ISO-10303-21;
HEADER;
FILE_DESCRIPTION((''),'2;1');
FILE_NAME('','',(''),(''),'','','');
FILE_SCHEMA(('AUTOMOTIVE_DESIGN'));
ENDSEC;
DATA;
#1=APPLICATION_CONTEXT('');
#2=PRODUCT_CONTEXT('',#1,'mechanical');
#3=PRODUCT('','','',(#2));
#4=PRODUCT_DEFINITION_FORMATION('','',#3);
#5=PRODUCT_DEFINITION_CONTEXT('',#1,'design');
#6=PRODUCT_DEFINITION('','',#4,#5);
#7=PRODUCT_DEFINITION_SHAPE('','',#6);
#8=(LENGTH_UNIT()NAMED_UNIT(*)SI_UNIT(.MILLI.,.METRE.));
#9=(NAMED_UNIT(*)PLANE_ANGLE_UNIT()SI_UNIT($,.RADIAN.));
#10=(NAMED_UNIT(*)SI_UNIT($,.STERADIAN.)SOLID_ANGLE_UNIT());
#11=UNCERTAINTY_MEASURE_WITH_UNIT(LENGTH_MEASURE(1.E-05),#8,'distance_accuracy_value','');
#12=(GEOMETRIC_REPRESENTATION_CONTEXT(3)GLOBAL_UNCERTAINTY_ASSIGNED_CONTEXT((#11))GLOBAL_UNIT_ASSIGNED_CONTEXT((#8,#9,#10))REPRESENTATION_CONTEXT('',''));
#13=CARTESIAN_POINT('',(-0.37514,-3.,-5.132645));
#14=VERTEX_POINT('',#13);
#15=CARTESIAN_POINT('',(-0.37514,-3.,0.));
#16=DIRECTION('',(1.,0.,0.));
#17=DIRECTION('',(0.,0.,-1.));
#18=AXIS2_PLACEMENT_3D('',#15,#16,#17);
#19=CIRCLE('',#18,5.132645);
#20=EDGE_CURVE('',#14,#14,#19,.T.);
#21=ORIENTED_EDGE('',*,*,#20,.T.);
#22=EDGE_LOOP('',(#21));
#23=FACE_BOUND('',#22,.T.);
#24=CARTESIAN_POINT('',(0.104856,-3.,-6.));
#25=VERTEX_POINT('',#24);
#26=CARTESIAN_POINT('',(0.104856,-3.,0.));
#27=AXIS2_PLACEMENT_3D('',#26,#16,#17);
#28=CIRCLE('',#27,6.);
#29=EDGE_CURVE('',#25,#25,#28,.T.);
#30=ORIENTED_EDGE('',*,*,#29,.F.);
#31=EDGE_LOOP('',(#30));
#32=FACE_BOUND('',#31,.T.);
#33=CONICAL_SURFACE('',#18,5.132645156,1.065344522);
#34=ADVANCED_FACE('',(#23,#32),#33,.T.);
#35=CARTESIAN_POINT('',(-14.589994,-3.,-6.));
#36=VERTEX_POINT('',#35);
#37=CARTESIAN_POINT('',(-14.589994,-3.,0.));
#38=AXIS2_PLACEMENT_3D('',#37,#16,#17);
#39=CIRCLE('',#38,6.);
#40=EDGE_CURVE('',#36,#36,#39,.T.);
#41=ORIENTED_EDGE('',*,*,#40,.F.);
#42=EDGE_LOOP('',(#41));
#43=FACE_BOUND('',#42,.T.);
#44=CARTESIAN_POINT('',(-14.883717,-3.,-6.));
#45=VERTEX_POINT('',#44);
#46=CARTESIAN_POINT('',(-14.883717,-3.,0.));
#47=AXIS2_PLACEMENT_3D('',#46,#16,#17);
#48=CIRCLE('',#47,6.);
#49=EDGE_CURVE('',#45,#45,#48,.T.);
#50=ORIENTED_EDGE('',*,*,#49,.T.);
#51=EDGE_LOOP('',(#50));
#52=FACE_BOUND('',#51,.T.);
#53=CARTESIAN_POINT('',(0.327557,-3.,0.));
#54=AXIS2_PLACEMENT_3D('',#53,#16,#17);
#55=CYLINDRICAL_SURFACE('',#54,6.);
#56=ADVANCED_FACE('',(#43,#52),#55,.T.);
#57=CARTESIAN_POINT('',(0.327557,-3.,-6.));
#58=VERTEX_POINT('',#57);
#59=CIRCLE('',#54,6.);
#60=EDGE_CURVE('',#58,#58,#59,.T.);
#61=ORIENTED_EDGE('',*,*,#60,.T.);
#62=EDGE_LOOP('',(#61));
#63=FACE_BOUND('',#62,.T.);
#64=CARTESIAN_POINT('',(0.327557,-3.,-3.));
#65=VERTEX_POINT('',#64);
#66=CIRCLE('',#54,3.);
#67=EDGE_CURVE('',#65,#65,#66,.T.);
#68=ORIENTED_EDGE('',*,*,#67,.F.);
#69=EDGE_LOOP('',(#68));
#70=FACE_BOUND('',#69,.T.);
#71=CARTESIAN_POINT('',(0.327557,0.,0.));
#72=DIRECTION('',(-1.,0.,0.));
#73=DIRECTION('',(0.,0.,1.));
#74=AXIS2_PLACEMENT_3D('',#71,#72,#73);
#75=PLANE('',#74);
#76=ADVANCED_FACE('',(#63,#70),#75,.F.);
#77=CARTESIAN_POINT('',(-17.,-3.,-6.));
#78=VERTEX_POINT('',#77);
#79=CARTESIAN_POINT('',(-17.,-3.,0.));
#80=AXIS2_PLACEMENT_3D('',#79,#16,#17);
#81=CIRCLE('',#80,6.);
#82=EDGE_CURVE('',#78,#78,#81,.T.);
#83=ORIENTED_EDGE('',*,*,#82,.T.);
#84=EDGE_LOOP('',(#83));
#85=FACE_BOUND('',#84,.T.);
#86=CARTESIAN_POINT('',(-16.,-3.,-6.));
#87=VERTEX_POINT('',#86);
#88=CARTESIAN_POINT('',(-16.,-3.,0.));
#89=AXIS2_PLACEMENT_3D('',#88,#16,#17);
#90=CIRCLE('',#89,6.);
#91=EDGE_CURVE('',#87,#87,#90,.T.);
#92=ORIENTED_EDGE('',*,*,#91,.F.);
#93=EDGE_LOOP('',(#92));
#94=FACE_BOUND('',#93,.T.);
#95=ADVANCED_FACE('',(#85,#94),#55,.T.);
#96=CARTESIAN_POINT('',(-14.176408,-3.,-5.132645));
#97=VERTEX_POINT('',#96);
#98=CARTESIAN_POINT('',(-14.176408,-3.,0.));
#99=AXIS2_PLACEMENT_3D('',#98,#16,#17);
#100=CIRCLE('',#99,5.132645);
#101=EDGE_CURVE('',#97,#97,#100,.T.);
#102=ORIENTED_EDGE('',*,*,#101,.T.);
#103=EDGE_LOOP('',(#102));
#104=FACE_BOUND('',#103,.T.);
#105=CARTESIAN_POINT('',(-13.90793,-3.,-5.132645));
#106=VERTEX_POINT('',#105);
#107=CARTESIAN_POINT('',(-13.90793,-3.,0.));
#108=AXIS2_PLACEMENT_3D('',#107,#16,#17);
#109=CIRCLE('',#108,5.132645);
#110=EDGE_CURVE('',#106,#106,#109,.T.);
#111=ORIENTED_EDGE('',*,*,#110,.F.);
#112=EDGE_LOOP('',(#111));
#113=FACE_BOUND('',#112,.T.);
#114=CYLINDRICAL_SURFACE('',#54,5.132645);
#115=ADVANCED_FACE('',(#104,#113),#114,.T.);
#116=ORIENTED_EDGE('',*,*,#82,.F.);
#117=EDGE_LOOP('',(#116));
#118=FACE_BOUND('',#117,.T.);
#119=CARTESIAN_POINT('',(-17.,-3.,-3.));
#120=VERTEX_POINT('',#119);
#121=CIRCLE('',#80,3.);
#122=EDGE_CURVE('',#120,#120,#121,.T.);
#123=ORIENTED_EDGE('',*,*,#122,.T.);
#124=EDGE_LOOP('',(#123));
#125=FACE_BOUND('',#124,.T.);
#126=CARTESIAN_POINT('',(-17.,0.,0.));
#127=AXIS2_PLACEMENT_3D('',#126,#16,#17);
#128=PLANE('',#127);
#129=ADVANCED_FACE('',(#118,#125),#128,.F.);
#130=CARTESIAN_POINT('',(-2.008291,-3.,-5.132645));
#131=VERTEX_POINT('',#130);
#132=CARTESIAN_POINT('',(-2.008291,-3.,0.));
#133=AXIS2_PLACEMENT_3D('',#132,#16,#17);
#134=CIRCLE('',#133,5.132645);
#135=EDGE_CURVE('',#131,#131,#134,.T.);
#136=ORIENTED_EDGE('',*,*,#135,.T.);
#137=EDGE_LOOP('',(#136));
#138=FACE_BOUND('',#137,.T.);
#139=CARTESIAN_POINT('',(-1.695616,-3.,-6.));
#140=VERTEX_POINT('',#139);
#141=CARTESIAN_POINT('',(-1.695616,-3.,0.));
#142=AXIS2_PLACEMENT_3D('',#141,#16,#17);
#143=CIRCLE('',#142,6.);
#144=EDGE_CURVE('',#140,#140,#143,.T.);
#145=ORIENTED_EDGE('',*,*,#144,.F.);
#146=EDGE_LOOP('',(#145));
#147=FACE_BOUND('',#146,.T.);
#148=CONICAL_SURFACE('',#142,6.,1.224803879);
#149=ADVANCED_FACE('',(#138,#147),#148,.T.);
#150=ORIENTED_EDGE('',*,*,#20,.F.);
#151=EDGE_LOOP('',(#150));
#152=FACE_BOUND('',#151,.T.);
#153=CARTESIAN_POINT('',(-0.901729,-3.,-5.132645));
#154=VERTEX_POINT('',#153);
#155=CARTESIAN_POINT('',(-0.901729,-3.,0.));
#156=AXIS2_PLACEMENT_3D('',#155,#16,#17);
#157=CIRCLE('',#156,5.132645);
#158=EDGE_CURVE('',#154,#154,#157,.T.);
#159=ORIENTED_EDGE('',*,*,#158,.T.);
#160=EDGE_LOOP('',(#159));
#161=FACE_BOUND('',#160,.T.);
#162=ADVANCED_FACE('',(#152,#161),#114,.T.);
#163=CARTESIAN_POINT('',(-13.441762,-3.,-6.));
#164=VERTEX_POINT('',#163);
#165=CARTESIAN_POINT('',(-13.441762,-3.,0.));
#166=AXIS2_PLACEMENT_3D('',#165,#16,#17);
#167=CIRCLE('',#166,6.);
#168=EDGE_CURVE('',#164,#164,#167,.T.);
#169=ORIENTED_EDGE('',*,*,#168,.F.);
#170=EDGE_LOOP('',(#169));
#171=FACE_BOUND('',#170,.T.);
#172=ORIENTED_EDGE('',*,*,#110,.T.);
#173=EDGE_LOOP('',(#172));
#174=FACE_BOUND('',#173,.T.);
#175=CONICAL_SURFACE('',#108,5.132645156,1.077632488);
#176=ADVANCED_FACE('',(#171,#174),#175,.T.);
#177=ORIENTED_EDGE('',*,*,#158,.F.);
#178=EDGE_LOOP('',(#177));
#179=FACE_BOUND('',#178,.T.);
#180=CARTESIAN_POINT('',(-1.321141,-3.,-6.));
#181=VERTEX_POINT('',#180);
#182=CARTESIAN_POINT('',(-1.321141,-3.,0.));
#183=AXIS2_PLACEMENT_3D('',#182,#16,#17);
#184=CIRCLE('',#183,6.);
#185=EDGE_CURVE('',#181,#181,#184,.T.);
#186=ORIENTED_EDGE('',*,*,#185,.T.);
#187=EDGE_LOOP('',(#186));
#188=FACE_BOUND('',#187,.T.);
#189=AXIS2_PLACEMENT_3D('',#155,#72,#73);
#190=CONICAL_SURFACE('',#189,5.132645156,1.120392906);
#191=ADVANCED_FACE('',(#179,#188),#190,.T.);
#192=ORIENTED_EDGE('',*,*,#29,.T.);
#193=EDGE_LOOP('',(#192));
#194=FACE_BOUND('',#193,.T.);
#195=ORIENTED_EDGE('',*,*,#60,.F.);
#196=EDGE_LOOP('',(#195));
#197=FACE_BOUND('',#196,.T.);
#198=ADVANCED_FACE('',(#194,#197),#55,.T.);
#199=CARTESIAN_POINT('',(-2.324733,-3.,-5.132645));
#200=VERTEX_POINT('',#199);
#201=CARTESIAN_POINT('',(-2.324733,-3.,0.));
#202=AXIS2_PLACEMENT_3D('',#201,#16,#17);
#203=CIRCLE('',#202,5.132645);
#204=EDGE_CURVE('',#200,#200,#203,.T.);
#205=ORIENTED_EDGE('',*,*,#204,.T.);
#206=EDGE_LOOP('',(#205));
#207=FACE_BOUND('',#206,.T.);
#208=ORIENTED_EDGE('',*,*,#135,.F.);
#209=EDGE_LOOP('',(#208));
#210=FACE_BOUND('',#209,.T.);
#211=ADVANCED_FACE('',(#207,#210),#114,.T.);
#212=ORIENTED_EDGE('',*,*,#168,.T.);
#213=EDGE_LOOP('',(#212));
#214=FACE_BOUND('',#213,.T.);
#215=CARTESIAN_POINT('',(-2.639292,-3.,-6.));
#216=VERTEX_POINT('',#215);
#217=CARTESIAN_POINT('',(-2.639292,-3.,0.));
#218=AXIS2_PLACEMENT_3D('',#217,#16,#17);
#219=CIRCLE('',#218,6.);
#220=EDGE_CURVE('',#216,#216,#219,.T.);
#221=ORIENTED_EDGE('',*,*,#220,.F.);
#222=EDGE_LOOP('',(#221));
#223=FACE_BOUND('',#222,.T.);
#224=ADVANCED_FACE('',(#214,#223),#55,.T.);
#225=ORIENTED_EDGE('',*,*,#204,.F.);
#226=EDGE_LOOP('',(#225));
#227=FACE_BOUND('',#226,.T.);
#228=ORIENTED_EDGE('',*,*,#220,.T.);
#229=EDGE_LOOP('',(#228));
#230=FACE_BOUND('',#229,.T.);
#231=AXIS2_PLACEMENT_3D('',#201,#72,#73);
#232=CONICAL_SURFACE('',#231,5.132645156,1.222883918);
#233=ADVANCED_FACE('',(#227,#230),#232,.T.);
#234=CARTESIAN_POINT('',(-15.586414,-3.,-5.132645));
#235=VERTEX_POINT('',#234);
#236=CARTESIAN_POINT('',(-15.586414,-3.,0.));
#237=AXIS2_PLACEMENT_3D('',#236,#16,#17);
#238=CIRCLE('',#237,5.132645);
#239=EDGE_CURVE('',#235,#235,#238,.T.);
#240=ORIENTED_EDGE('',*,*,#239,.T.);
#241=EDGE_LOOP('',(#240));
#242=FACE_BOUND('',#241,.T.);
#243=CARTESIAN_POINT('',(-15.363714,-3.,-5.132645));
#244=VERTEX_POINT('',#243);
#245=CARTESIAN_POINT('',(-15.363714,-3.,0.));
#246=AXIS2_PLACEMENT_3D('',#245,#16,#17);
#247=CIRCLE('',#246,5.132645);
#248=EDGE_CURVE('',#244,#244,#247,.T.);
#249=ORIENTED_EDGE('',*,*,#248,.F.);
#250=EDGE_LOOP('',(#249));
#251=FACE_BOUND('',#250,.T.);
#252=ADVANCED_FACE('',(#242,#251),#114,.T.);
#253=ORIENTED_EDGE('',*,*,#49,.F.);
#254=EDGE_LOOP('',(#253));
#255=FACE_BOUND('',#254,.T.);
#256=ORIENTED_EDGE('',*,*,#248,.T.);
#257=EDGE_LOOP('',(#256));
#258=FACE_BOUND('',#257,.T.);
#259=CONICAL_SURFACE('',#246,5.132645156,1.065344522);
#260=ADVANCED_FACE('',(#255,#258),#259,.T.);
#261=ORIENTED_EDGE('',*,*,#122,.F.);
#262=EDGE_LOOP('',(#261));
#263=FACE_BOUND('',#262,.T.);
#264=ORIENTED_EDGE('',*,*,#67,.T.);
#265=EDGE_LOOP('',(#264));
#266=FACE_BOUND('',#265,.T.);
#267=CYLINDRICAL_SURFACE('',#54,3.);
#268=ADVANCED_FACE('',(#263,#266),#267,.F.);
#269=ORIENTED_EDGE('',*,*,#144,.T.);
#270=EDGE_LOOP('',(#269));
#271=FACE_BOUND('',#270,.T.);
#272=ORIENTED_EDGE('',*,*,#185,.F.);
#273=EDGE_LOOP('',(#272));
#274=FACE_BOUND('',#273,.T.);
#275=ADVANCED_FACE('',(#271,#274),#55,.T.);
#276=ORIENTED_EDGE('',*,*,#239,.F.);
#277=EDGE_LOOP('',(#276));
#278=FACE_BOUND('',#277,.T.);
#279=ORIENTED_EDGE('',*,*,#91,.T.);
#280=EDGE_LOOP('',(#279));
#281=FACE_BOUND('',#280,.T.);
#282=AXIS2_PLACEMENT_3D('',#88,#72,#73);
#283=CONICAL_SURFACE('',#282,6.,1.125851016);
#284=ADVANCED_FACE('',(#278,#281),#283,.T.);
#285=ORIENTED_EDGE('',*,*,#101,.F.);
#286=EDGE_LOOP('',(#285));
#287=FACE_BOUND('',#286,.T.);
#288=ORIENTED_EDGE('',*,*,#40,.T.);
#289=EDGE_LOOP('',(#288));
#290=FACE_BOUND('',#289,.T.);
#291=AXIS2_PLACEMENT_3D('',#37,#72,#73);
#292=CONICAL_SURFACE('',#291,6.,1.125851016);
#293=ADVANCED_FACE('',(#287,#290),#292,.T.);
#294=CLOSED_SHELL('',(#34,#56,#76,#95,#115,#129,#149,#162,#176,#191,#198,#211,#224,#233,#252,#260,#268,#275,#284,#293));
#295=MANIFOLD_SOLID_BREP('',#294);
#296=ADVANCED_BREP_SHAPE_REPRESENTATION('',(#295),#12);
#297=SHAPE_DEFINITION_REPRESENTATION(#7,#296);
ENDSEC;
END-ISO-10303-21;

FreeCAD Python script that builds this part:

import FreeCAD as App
import Part
import Sketcher

V = App.Vector

doc = App.newDocument("Part")
params = doc.addObject("Spreadsheet::Sheet", "Params")
for row, (alias, value) in enumerate([
    ("sketch1_width", "1 mm"),
    ("sketch1_height", "3 mm"),
    ("revolution_angle", "360 deg"),
], start=1):
    params.set(f"A{row}", alias)
    params.set(f"B{row}", "=" + value)
    params.setAlias(f"B{row}", alias)

body = doc.addObject("PartDesign::Body", "Body")

# Sketch on XY plane
sketch1 = body.newObject("Sketcher::SketchObject", "Sketch")
sketch1.AttachmentSupport = (doc.getObject("XY_Plane"), [""])
sketch1.MapMode = "FlatFace"
sketch1.addGeometry(Part.LineSegment(V(-2.324733, 2.132645, 0), V(-2.639292, 3, 0)), False)
sketch1.addGeometry(Part.LineSegment(V(-2.639292, 3, 0), V(-13.441762, 3, 0)), False)
sketch1.addGeometry(Part.LineSegment(V(-13.441762, 3, 0), V(-13.90793, 2.132645, 0)), False)
sketch1.addGeometry(Part.LineSegment(V(-13.90793, 2.132645, 0), V(-14.176408, 2.132645, 0)), False)
sketch1.addGeometry(Part.LineSegment(V(-14.176408, 2.132645, 0), V(-14.589994, 3, 0)), False)
sketch1.addGeometry(Part.LineSegment(V(-14.589994, 3, 0), V(-14.883717, 3, 0)), False)
sketch1.addGeometry(Part.LineSegment(V(-14.883717, 3, 0), V(-15.363714, 2.132645, 0)), False)
sketch1.addGeometry(Part.LineSegment(V(-15.363714, 2.132645, 0), V(-15.586414, 2.132645, 0)), False)
sketch1.addGeometry(Part.LineSegment(V(-15.586414, 2.132645, 0), V(-16, 3, 0)), False)
sketch1.addGeometry(Part.LineSegment(V(-16, 3, 0), V(-17, 3, 0)), False)
sketch1.addGeometry(Part.LineSegment(V(-17, 3, 0), V(-17, 0, 0)), False)
sketch1.addGeometry(Part.LineSegment(V(-17, 0, 0), V(0.327557, 0, 0)), False)
sketch1.addGeometry(Part.LineSegment(V(0.327557, 0, 0), V(0.327557, 3, 0)), False)
sketch1.addGeometry(Part.LineSegment(V(0.327557, 3, 0), V(0.104856, 3, 0)), False)
sketch1.addGeometry(Part.LineSegment(V(0.104856, 3, 0), V(-0.37514, 2.132645, 0)), False)
sketch1.addGeometry(Part.LineSegment(V(-0.37514, 2.132645, 0), V(-0.901729, 2.132645, 0)), False)
sketch1.addGeometry(Part.LineSegment(V(-0.901729, 2.132645, 0), V(-1.321141, 3, 0)), False)
sketch1.addGeometry(Part.LineSegment(V(-1.321141, 3, 0), V(-1.695616, 3, 0)), False)
sketch1.addGeometry(Part.LineSegment(V(-1.695616, 3, 0), V(-2.008291, 2.132645, 0)), False)
sketch1.addGeometry(Part.LineSegment(V(-2.008291, 2.132645, 0), V(-2.324733, 2.132645, 0)), False)
sketch1.addGeometry(Part.LineSegment(V(0.327557, -3, 0), V(-17, -3, 0)), True)  # axis
sketch1.addConstraint(Sketcher.Constraint("Coincident", 0, 2, 1, 1))
sketch1.addConstraint(Sketcher.Constraint("Coincident", 1, 2, 2, 1))
sketch1.addConstraint(Sketcher.Constraint("Coincident", 2, 2, 3, 1))
sketch1.addConstraint(Sketcher.Constraint("Coincident", 3, 2, 4, 1))
sketch1.addConstraint(Sketcher.Constraint("Coincident", 4, 2, 5, 1))
sketch1.addConstraint(Sketcher.Constraint("Coincident", 5, 2, 6, 1))
sketch1.addConstraint(Sketcher.Constraint("Coincident", 6, 2, 7, 1))
sketch1.addConstraint(Sketcher.Constraint("Coincident", 7, 2, 8, 1))
sketch1.addConstraint(Sketcher.Constraint("Coincident", 8, 2, 9, 1))
sketch1.addConstraint(Sketcher.Constraint("Coincident", 9, 2, 10, 1))
sketch1.addConstraint(Sketcher.Constraint("Coincident", 10, 2, 11, 1))
sketch1.addConstraint(Sketcher.Constraint("Coincident", 11, 2, 12, 1))
sketch1.addConstraint(Sketcher.Constraint("Coincident", 12, 2, 13, 1))
sketch1.addConstraint(Sketcher.Constraint("Coincident", 13, 2, 14, 1))
sketch1.addConstraint(Sketcher.Constraint("Coincident", 14, 2, 15, 1))
sketch1.addConstraint(Sketcher.Constraint("Coincident", 15, 2, 16, 1))
sketch1.addConstraint(Sketcher.Constraint("Coincident", 16, 2, 17, 1))
sketch1.addConstraint(Sketcher.Constraint("Coincident", 17, 2, 18, 1))
sketch1.addConstraint(Sketcher.Constraint("Coincident", 18, 2, 19, 1))
sketch1.addConstraint(Sketcher.Constraint("Coincident", 19, 2, 0, 1))
sketch1.addConstraint(Sketcher.Constraint("Horizontal", 1))
sketch1.addConstraint(Sketcher.Constraint("Horizontal", 3))
sketch1.addConstraint(Sketcher.Constraint("Horizontal", 5))
sketch1.addConstraint(Sketcher.Constraint("Horizontal", 7))
sketch1.addConstraint(Sketcher.Constraint("Horizontal", 9))
sketch1.addConstraint(Sketcher.Constraint("Vertical", 10))
sketch1.addConstraint(Sketcher.Constraint("Horizontal", 11))
sketch1.addConstraint(Sketcher.Constraint("Vertical", 12))
sketch1.addConstraint(Sketcher.Constraint("Horizontal", 13))
sketch1.addConstraint(Sketcher.Constraint("Horizontal", 15))
sketch1.addConstraint(Sketcher.Constraint("Horizontal", 17))
sketch1.addConstraint(Sketcher.Constraint("Horizontal", 19))
sketch1.addConstraint(Sketcher.Constraint("Horizontal", 20))
sketch1.addConstraint(Sketcher.Constraint("Symmetric", 12, 2, 20, 1, -1))
sketch1.addConstraint(Sketcher.Constraint("Symmetric", 9, 2, 20, 2, -1))
sketch1.addConstraint(Sketcher.Constraint("PointOnObject", 10, 2, -1))
sketch1.addConstraint(Sketcher.Constraint("Parallel", 4, 8))
sketch1.addConstraint(Sketcher.Constraint("Parallel", 6, 14))
sketch1.addConstraint(Sketcher.Constraint("Horizontal", 1, 2, 4, 2))
sketch1.addConstraint(Sketcher.Constraint("Horizontal", 3, 2, 6, 2))
sketch1.addConstraint(Sketcher.Constraint("Horizontal", 5, 2, 8, 2))
sketch1.addConstraint(Sketcher.Constraint("Horizontal", 7, 2, 14, 2))
sketch1.addConstraint(Sketcher.Constraint("Horizontal", 13, 2, 16, 2))
sketch1.addConstraint(Sketcher.Constraint("Horizontal", 15, 2, 18, 2))
sketch1.addConstraint(Sketcher.Constraint("Equal", 7, 13))
sketch1.addConstraint(Sketcher.Constraint("DistanceX", 9, 2, 9, 1, 1.0))
sketch1.addConstraint(Sketcher.Constraint("DistanceY", 10, 2, 10, 1, 3.0))
sketch1.addConstraint(Sketcher.Constraint("DistanceX", 8, 2, -1, 1, 16.0))
sketch1.addConstraint(Sketcher.Constraint("DistanceX", 7, 2, 7, 1, 0.2227))
sketch1.addConstraint(Sketcher.Constraint("DistanceX", 16, 2, 14, 2, 0.946001))
sketch1.addConstraint(Sketcher.Constraint("DistanceX", 0, 2, 18, 2, 0.631001))
sketch1.addConstraint(Sketcher.Constraint("DistanceX", 1, 2, 1, 1, 10.80247))
sketch1.addConstraint(Sketcher.Constraint("DistanceX", 15, 2, 15, 1, 0.526589))
sketch1.addConstraint(Sketcher.Constraint("DistanceX", 19, 2, 19, 1, 0.316442))
sketch1.addConstraint(Sketcher.Constraint("DistanceX", 4, 2, 0, 2, 11.950702))
sketch1.addConstraint(Sketcher.Constraint("Distance", 2, 0.984691))
sketch1.addConstraint(Sketcher.Constraint("DistanceX", 3, 2, 3, 1, 0.268478))
sketch1.addConstraint(Sketcher.Constraint("DistanceX", 5, 2, 5, 1, 0.293724))
sketch1.addConstraint(Sketcher.Constraint("DistanceX", 11, 1, 11, 2, 17.327557))
sketch1.addConstraint(Sketcher.Constraint("DistanceX", 17, 2, 17, 1, 0.374475))
sketch1.addConstraint(Sketcher.Constraint("DistanceX", 2, 2, -1, 1, 13.90793))
sketch1.addConstraint(Sketcher.Constraint("DistanceX", 14, 2, -1, 1, 0.37514))
sketch1.setExpression("Constraints[45]", "Params.sketch1_width")
sketch1.setExpression("Constraints[46]", "Params.sketch1_height")
revolution = body.newObject("PartDesign::Revolution", "Revolution")
revolution.Profile = sketch1
revolution.ReferenceAxis = (sketch1, ["Axis0"])
revolution.setExpression("Angle", "Params.revolution_angle")

doc.recompute()
